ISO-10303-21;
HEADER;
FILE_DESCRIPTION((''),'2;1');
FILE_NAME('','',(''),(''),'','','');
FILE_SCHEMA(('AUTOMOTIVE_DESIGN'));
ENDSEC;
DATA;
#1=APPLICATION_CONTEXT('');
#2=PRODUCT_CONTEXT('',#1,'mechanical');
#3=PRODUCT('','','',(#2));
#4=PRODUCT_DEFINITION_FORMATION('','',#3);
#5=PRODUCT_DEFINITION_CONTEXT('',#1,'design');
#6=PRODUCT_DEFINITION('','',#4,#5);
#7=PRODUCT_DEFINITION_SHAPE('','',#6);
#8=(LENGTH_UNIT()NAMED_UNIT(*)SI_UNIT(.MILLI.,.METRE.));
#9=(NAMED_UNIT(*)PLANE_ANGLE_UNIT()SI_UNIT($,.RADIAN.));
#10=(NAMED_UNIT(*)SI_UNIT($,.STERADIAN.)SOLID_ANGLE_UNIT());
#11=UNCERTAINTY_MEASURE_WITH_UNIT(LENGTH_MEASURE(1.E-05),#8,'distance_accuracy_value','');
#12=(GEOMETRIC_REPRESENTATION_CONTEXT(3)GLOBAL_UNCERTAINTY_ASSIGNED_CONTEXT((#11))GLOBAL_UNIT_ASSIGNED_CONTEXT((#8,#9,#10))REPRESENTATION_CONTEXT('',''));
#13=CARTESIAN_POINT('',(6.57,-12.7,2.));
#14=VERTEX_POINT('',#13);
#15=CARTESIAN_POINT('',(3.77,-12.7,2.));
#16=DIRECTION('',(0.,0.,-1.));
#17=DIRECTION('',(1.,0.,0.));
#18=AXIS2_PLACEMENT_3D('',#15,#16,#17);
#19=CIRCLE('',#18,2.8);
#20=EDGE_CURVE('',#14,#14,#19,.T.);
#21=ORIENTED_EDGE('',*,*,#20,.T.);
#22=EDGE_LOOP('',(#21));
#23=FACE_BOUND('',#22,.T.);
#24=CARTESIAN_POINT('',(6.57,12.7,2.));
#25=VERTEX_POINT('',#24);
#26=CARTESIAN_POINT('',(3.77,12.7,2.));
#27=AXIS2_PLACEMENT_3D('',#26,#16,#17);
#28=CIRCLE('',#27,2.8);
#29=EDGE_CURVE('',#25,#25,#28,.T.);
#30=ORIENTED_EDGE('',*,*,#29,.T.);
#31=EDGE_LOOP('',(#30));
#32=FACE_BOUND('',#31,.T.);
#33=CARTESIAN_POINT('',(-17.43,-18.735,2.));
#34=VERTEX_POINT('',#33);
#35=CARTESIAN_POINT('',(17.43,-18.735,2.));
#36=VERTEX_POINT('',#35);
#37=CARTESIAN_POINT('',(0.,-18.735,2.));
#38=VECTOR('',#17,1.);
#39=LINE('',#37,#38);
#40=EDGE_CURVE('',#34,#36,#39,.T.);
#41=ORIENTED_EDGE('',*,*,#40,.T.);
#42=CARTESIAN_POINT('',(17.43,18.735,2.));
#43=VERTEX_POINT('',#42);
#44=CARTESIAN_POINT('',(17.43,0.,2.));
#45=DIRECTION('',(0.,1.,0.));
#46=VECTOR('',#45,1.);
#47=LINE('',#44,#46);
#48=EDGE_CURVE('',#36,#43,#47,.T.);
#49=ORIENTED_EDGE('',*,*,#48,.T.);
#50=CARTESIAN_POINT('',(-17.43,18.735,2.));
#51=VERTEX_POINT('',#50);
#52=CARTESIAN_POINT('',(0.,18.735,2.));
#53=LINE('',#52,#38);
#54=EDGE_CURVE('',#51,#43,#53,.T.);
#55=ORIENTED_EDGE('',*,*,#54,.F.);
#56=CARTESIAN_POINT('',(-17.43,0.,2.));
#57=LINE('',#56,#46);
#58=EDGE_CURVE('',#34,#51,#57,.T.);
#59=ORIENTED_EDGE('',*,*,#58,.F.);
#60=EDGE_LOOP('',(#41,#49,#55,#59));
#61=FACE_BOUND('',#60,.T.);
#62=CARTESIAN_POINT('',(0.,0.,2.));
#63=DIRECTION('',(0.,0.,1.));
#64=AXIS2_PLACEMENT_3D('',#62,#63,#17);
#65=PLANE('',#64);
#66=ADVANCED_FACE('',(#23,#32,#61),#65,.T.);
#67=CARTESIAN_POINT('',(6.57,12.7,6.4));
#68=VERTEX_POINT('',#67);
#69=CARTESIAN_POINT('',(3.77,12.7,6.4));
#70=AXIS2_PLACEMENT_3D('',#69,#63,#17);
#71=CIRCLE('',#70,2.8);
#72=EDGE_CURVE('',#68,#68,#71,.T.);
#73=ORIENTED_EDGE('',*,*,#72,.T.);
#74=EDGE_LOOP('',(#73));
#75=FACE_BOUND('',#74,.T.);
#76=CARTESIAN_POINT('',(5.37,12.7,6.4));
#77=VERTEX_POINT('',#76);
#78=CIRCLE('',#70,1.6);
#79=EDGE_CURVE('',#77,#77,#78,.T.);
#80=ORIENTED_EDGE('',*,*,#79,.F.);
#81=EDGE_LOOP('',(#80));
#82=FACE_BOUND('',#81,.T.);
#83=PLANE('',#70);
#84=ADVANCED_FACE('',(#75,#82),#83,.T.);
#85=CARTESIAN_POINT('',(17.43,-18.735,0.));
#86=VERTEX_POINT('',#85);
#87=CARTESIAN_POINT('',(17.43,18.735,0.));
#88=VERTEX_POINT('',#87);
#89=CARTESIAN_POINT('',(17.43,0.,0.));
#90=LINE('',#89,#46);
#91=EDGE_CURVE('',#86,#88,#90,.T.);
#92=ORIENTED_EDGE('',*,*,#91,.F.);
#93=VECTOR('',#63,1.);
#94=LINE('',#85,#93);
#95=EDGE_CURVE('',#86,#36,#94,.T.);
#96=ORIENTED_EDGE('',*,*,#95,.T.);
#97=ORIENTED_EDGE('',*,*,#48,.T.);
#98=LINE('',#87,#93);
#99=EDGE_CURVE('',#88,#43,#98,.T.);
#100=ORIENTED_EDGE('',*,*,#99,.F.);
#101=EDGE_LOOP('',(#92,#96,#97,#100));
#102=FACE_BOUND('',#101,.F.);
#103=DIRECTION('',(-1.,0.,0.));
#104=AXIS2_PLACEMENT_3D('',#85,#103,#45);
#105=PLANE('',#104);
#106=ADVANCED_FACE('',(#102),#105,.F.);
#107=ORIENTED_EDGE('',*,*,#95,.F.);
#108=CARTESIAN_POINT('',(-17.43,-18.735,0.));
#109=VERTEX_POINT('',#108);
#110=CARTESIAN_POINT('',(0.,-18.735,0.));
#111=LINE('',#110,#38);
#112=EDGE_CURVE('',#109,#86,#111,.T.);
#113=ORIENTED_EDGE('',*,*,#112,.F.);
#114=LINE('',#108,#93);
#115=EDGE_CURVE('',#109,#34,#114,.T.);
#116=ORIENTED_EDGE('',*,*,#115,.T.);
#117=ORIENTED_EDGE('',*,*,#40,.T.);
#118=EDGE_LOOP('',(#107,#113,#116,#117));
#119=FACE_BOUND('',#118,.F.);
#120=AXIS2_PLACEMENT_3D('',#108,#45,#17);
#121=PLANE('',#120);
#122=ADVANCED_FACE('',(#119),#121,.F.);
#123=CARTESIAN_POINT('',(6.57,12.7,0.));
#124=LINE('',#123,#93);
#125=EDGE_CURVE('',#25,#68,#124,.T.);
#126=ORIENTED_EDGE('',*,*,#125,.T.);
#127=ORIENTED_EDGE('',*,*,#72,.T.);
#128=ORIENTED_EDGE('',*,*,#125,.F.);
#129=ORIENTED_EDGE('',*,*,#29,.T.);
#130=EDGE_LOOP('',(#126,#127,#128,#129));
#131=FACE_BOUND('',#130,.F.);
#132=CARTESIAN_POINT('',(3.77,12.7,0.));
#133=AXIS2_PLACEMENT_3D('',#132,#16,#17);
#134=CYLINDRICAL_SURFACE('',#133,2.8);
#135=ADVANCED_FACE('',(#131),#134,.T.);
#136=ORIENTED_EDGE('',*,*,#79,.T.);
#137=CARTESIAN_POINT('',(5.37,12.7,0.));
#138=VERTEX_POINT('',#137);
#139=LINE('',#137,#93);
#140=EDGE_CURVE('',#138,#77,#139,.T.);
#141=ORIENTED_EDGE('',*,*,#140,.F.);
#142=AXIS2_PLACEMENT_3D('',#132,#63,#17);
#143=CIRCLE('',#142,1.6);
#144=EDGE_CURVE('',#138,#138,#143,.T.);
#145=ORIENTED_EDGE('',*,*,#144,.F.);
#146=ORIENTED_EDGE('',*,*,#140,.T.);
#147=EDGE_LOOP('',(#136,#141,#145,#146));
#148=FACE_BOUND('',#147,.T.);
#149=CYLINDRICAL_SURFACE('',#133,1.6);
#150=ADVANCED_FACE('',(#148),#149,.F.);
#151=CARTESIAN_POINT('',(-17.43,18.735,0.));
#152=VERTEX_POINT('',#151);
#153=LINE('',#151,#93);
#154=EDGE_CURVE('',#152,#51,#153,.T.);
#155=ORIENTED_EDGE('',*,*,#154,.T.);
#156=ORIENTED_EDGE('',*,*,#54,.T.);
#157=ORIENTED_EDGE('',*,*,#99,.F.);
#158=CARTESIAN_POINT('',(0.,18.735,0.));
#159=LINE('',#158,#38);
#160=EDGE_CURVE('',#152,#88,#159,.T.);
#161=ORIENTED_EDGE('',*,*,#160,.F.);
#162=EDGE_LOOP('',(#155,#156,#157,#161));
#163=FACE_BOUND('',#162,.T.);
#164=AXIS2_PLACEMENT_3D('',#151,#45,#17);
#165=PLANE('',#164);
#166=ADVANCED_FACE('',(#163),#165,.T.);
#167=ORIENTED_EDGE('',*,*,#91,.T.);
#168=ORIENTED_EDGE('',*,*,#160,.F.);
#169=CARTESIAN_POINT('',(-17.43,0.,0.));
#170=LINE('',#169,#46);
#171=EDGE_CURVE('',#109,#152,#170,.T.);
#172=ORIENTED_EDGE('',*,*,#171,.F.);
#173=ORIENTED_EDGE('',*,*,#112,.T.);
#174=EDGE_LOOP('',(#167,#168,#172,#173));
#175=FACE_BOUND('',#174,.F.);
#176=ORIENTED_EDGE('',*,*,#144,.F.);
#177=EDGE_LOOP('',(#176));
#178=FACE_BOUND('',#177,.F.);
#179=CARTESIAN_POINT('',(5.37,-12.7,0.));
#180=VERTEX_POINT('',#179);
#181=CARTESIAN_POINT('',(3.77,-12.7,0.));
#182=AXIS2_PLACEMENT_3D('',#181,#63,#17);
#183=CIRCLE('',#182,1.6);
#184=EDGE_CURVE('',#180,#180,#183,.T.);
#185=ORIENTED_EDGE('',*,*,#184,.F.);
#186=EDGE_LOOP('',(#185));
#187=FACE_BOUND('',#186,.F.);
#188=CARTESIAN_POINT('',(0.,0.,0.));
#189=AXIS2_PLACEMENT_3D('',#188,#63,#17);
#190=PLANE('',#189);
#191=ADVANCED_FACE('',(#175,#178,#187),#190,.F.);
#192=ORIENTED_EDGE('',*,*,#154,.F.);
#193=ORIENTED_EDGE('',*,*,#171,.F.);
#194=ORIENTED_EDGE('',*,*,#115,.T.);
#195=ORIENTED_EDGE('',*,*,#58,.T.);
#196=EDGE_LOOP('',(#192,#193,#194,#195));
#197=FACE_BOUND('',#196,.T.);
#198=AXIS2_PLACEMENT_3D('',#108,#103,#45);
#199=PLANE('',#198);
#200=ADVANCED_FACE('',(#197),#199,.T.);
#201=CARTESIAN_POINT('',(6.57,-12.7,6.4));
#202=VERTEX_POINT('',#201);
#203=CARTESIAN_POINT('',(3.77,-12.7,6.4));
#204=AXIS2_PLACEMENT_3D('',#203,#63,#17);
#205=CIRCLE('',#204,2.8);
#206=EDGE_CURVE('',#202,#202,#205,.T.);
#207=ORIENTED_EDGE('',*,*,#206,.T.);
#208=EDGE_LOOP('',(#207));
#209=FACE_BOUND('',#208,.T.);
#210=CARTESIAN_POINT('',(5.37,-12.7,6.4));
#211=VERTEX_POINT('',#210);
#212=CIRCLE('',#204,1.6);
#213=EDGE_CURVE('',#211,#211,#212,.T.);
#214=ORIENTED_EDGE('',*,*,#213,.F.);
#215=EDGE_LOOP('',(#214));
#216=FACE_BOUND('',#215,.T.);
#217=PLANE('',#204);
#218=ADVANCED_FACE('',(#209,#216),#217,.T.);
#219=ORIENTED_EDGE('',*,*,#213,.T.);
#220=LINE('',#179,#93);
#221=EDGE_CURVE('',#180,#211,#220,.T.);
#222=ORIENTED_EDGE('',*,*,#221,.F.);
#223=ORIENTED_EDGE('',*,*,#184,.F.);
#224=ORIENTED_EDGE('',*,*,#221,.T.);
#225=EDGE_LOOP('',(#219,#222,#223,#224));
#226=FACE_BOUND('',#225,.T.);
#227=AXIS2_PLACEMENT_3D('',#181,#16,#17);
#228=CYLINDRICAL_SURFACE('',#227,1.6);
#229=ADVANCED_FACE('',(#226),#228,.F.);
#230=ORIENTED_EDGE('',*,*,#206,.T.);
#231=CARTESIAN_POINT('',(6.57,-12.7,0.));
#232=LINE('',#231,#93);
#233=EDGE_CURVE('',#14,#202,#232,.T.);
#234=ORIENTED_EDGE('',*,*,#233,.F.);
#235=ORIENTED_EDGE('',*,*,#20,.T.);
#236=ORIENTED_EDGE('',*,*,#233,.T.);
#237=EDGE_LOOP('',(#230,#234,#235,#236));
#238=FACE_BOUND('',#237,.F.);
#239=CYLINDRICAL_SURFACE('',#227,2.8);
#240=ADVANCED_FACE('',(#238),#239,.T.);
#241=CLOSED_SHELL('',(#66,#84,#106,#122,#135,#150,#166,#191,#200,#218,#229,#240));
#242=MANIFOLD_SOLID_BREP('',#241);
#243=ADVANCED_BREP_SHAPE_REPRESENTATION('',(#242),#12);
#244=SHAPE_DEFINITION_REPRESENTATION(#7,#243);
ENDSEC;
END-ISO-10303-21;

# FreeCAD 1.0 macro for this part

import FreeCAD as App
import Part
import Sketcher

doc = App.newDocument("Part")
body = doc.addObject("PartDesign::Body", "Body")

# Sketch on XY plane
sketch1 = body.newObject("Sketcher::SketchObject", "Sketch")
sketch1.AttachmentSupport = (doc.getObject("XY_Plane"), [""])
sketch1.MapMode = "FlatFace"
sketch1.addGeometry(Part.LineSegment(App.Vector(-17.43, 18.735, 0), App.Vector(-17.43, -18.735, 0)), False)
sketch1.addGeometry(Part.LineSegment(App.Vector(-17.43, -18.735, 0), App.Vector(17.43, -18.735, 0)), False)
sketch1.addGeometry(Part.LineSegment(App.Vector(17.43, -18.735, 0), App.Vector(17.43, 18.735, 0)), False)
sketch1.addGeometry(Part.LineSegment(App.Vector(17.43, 18.735, 0), App.Vector(-17.43, 18.735, 0)), False)
sketch1.addGeometry(Part.Circle(App.Vector(3.77, -12.7, 0), App.Vector(0, 0, 1), 1.6), False)
sketch1.addGeometry(Part.Circle(App.Vector(3.77, 12.7, 0), App.Vector(0, 0, 1), 1.6), False)
sketch1.addConstraint(Sketcher.Constraint("Coincident", 0, 2, 1, 1))
sketch1.addConstraint(Sketcher.Constraint("Coincident", 1, 2, 2, 1))
sketch1.addConstraint(Sketcher.Constraint("Coincident", 2, 2, 3, 1))
sketch1.addConstraint(Sketcher.Constraint("Coincident", 3, 2, 0, 1))
sketch1.addConstraint(Sketcher.Constraint("Vertical", 0))
sketch1.addConstraint(Sketcher.Constraint("Horizontal", 1))
sketch1.addConstraint(Sketcher.Constraint("Vertical", 2))
sketch1.addConstraint(Sketcher.Constraint("Horizontal", 3))
sketch1.addConstraint(Sketcher.Constraint("Equal", 4, 5))
sketch1.addConstraint(Sketcher.Constraint("Symmetric", 0, 2, 2, 2, -1, 1))
sketch1.addConstraint(Sketcher.Constraint("Symmetric", 4, 3, 5, 3, -1))
sketch1.addConstraint(Sketcher.Constraint("Diameter", 4, 3.2))
sketch1.addConstraint(Sketcher.Constraint("DistanceX", 1, 1, 1, 2, 34.86))
sketch1.addConstraint(Sketcher.Constraint("DistanceY", 0, 2, 0, 1, 37.47))
sketch1.addConstraint(Sketcher.Constraint("DistanceY", 4, 3, -1, 1, 12.7))
sketch1.addConstraint(Sketcher.Constraint("DistanceX", 0, 2, 4, 3, 21.2))
pad1 = body.newObject("PartDesign::Pad", "Pad")
pad1.Profile = sketch1
pad1.Length = 2

# Sketch on XY plane
sketch2 = body.newObject("Sketcher::SketchObject", "Sketch001")
sketch2.AttachmentSupport = (doc.getObject("XY_Plane"), [""])
sketch2.MapMode = "FlatFace"
sketch2.addGeometry(Part.Circle(App.Vector(3.77, 12.7, 0), App.Vector(0, 0, 1), 2.8), False)
sketch2.addGeometry(Part.Circle(App.Vector(3.77, 12.7, 0), App.Vector(0, 0, 1), 1.6), False)
sketch2.addGeometry(Part.Circle(App.Vector(3.77, -12.7, 0), App.Vector(0, 0, 1), 2.8), False)
sketch2.addGeometry(Part.Circle(App.Vector(3.77, -12.7, 0), App.Vector(0, 0, 1), 1.6), False)
sketch2.addConstraint(Sketcher.Constraint("Coincident", 1, 3, 0, 3))
sketch2.addConstraint(Sketcher.Constraint("Coincident", 3, 3, 2, 3))
sketch2.addConstraint(Sketcher.Constraint("Equal", 0, 2))
sketch2.addConstraint(Sketcher.Constraint("Equal", 1, 3))
sketch2.addConstraint(Sketcher.Constraint("Symmetric", 0, 3, 2, 3, -1))
sketch2.addConstraint(Sketcher.Constraint("Diameter", 0, 5.6))
sketch2.addConstraint(Sketcher.Constraint("Diameter", 1, 3.2))
sketch2.addConstraint(Sketcher.Constraint("DistanceY", -1, 1, 0, 3, 12.7))
sketch2.addConstraint(Sketcher.Constraint("DistanceX", -1, 1, 0, 3, 3.77))
pad2 = body.newObject("PartDesign::Pad", "Pad001")
pad2.Profile = sketch2
pad2.Length = 6.4

doc.recompute()
